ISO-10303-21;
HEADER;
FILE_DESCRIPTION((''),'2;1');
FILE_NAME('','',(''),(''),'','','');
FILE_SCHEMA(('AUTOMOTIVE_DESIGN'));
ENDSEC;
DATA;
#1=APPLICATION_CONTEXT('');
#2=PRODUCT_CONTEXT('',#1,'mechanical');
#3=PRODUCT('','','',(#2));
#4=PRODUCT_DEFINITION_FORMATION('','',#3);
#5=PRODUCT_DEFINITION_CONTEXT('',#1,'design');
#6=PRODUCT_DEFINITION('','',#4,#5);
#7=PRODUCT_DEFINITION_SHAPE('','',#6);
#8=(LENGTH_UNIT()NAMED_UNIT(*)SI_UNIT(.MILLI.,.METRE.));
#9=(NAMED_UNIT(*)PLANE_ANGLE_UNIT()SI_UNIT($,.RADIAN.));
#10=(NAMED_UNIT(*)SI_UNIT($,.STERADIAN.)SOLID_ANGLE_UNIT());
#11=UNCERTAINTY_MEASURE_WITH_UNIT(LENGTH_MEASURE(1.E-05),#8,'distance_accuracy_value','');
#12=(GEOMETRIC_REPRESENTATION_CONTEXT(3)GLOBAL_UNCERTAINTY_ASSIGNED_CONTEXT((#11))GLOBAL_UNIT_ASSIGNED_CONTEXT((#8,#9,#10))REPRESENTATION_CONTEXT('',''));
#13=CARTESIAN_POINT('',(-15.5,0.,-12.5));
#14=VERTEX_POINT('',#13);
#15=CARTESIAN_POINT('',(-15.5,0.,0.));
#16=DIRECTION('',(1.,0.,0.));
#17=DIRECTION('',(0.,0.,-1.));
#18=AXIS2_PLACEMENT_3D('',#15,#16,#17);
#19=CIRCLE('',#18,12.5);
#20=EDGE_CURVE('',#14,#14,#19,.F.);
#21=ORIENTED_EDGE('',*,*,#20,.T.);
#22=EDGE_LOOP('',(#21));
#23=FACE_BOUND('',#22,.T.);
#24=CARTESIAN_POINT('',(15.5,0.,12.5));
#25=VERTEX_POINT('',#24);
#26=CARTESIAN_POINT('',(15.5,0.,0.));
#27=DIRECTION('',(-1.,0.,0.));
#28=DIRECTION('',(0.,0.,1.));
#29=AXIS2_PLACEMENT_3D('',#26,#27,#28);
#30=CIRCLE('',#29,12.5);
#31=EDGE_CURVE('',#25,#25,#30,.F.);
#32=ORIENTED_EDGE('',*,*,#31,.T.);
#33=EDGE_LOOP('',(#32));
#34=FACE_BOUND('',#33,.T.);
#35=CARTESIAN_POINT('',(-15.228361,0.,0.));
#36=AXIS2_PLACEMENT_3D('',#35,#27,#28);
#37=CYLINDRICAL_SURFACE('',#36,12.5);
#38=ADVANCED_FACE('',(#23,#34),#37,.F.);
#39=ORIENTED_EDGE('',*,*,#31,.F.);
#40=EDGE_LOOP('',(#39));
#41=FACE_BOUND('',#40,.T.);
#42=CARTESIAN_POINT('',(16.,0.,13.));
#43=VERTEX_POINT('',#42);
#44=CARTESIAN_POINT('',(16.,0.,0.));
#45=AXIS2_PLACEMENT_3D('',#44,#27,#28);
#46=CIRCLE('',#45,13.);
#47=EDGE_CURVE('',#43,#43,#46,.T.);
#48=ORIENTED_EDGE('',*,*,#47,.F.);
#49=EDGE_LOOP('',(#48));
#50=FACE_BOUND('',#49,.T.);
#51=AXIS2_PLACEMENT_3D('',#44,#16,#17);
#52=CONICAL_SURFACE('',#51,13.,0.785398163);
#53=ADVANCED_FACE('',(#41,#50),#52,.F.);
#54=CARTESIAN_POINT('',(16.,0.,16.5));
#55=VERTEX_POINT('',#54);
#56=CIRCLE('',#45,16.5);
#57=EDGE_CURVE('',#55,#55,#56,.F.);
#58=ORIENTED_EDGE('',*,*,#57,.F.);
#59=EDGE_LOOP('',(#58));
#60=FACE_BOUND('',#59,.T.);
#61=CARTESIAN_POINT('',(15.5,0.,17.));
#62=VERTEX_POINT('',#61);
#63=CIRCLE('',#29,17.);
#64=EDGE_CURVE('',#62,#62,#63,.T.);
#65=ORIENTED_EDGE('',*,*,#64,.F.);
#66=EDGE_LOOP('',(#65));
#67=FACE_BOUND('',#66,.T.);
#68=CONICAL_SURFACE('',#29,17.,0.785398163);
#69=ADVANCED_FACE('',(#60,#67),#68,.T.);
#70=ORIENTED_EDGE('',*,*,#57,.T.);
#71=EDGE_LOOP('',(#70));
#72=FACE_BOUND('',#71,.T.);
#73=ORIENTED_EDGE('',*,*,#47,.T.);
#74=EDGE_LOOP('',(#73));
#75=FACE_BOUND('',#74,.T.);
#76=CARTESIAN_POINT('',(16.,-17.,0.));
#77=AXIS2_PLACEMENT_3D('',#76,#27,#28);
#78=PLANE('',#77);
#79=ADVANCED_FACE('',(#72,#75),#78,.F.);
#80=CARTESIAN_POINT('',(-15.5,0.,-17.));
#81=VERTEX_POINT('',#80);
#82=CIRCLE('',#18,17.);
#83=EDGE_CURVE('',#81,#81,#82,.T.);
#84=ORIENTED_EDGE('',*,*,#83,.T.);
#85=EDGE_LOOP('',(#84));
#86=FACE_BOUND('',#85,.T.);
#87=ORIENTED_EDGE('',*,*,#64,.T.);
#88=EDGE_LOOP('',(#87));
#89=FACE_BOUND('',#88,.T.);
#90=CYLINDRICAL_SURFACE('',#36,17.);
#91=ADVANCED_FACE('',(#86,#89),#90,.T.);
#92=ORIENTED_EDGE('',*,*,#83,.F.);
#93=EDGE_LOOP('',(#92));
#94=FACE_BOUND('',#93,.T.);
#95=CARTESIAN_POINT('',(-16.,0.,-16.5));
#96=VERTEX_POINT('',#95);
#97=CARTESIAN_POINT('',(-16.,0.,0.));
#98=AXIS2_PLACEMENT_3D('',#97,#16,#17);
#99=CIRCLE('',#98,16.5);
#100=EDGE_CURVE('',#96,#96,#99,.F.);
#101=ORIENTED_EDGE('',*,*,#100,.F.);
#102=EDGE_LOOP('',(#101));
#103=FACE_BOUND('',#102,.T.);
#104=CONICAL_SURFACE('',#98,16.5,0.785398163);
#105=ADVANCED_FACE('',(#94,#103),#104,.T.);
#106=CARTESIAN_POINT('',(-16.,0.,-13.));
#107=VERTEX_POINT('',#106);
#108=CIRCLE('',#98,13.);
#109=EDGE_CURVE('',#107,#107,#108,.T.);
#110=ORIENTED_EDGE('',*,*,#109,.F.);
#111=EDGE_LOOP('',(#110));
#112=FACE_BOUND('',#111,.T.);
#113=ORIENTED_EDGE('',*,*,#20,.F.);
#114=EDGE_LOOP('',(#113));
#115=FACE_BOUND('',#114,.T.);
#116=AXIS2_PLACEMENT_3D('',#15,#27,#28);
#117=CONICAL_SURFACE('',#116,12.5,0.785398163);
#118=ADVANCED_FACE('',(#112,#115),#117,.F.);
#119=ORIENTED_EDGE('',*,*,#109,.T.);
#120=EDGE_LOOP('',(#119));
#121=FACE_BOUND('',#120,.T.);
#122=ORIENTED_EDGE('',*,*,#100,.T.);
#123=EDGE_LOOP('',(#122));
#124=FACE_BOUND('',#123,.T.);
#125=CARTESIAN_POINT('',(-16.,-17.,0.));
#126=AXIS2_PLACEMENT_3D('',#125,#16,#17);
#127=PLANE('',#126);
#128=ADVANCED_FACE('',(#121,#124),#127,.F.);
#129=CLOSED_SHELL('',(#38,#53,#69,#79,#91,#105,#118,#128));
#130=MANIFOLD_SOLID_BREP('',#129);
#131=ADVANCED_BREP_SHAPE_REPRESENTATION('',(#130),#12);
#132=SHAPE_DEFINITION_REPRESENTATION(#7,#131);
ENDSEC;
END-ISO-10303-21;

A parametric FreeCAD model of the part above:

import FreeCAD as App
import Part
import Sketcher
from FreeCAD import Vector
Q = App.Units.Quantity


def edges_at(feature, points):
    """Names of the edges that pass closest to the given points."""
    edges = feature.Shape.Edges
    near = lambda p: min(range(len(edges)), key=lambda i: edges[i].distToShape(Part.Vertex(*p))[0])
    return sorted({f"Edge{near(p) + 1}" for p in points})


def add_polygon(sketch, points):
    """Adds a closed chain of lines whose ends are joined by coincident constraints."""
    first, n = sketch.GeometryCount, len(points)
    for a, b in zip(points, points[1:] + points[:1]):
        sketch.addGeometry(Part.LineSegment(App.Vector(*a, 0), App.Vector(*b, 0)), False)
    for i in range(n):
        sketch.addConstraint(Sketcher.Constraint("Coincident", first + i, 2, first + (i + 1) % n, 1))

doc = App.newDocument("Part")
body = doc.addObject("PartDesign::Body", "Body")

sketch1 = doc.addObject("Sketcher::SketchObject", "Sketch")
body.addObject(sketch1)
sketch1.AttachmentSupport = (doc.XY_Plane, [""])
sketch1.MapMode = "FlatFace"
add_polygon(sketch1, [(-16, 17), (-16, 12.5), (16, 12.5), (16, 17)])
sketch1.addConstraint(Sketcher.Constraint("Vertical", 0))
sketch1.addConstraint(Sketcher.Constraint("Horizontal", 1))
sketch1.addConstraint(Sketcher.Constraint("Vertical", 2))
sketch1.addConstraint(Sketcher.Constraint("Horizontal", 3))
sketch1.addConstraint(Sketcher.Constraint("DistanceX", 1, 1, 1, 2, Q("32 mm")))
sketch1.addConstraint(Sketcher.Constraint("DistanceY", 0, 2, 0, 1, Q("4.5 mm")))
sketch1.addConstraint(Sketcher.Constraint("DistanceX", 0, 2, -1, 1, Q("16 mm")))
sketch1.addConstraint(Sketcher.Constraint("DistanceY", -1, 1, 2, 2, Q("17 mm")))
revolution = doc.addObject("PartDesign::Revolution", "Revolution")
body.addObject(revolution)
revolution.Profile = sketch1
revolution.ReferenceAxis = (sketch1, ["H_Axis"])
revolution.Angle = 360
doc.recompute()

chamfer = doc.addObject("PartDesign::Chamfer", "Chamfer")
body.addObject(chamfer)
chamfer.Base = (revolution, edges_at(revolution, [
    (-16, 0, -17),
    (16, 0, -17),
    (16, 0, -12.5),
    (-16, 0, -12.5),
]))
chamfer.Size = 0.5

doc.recompute()
